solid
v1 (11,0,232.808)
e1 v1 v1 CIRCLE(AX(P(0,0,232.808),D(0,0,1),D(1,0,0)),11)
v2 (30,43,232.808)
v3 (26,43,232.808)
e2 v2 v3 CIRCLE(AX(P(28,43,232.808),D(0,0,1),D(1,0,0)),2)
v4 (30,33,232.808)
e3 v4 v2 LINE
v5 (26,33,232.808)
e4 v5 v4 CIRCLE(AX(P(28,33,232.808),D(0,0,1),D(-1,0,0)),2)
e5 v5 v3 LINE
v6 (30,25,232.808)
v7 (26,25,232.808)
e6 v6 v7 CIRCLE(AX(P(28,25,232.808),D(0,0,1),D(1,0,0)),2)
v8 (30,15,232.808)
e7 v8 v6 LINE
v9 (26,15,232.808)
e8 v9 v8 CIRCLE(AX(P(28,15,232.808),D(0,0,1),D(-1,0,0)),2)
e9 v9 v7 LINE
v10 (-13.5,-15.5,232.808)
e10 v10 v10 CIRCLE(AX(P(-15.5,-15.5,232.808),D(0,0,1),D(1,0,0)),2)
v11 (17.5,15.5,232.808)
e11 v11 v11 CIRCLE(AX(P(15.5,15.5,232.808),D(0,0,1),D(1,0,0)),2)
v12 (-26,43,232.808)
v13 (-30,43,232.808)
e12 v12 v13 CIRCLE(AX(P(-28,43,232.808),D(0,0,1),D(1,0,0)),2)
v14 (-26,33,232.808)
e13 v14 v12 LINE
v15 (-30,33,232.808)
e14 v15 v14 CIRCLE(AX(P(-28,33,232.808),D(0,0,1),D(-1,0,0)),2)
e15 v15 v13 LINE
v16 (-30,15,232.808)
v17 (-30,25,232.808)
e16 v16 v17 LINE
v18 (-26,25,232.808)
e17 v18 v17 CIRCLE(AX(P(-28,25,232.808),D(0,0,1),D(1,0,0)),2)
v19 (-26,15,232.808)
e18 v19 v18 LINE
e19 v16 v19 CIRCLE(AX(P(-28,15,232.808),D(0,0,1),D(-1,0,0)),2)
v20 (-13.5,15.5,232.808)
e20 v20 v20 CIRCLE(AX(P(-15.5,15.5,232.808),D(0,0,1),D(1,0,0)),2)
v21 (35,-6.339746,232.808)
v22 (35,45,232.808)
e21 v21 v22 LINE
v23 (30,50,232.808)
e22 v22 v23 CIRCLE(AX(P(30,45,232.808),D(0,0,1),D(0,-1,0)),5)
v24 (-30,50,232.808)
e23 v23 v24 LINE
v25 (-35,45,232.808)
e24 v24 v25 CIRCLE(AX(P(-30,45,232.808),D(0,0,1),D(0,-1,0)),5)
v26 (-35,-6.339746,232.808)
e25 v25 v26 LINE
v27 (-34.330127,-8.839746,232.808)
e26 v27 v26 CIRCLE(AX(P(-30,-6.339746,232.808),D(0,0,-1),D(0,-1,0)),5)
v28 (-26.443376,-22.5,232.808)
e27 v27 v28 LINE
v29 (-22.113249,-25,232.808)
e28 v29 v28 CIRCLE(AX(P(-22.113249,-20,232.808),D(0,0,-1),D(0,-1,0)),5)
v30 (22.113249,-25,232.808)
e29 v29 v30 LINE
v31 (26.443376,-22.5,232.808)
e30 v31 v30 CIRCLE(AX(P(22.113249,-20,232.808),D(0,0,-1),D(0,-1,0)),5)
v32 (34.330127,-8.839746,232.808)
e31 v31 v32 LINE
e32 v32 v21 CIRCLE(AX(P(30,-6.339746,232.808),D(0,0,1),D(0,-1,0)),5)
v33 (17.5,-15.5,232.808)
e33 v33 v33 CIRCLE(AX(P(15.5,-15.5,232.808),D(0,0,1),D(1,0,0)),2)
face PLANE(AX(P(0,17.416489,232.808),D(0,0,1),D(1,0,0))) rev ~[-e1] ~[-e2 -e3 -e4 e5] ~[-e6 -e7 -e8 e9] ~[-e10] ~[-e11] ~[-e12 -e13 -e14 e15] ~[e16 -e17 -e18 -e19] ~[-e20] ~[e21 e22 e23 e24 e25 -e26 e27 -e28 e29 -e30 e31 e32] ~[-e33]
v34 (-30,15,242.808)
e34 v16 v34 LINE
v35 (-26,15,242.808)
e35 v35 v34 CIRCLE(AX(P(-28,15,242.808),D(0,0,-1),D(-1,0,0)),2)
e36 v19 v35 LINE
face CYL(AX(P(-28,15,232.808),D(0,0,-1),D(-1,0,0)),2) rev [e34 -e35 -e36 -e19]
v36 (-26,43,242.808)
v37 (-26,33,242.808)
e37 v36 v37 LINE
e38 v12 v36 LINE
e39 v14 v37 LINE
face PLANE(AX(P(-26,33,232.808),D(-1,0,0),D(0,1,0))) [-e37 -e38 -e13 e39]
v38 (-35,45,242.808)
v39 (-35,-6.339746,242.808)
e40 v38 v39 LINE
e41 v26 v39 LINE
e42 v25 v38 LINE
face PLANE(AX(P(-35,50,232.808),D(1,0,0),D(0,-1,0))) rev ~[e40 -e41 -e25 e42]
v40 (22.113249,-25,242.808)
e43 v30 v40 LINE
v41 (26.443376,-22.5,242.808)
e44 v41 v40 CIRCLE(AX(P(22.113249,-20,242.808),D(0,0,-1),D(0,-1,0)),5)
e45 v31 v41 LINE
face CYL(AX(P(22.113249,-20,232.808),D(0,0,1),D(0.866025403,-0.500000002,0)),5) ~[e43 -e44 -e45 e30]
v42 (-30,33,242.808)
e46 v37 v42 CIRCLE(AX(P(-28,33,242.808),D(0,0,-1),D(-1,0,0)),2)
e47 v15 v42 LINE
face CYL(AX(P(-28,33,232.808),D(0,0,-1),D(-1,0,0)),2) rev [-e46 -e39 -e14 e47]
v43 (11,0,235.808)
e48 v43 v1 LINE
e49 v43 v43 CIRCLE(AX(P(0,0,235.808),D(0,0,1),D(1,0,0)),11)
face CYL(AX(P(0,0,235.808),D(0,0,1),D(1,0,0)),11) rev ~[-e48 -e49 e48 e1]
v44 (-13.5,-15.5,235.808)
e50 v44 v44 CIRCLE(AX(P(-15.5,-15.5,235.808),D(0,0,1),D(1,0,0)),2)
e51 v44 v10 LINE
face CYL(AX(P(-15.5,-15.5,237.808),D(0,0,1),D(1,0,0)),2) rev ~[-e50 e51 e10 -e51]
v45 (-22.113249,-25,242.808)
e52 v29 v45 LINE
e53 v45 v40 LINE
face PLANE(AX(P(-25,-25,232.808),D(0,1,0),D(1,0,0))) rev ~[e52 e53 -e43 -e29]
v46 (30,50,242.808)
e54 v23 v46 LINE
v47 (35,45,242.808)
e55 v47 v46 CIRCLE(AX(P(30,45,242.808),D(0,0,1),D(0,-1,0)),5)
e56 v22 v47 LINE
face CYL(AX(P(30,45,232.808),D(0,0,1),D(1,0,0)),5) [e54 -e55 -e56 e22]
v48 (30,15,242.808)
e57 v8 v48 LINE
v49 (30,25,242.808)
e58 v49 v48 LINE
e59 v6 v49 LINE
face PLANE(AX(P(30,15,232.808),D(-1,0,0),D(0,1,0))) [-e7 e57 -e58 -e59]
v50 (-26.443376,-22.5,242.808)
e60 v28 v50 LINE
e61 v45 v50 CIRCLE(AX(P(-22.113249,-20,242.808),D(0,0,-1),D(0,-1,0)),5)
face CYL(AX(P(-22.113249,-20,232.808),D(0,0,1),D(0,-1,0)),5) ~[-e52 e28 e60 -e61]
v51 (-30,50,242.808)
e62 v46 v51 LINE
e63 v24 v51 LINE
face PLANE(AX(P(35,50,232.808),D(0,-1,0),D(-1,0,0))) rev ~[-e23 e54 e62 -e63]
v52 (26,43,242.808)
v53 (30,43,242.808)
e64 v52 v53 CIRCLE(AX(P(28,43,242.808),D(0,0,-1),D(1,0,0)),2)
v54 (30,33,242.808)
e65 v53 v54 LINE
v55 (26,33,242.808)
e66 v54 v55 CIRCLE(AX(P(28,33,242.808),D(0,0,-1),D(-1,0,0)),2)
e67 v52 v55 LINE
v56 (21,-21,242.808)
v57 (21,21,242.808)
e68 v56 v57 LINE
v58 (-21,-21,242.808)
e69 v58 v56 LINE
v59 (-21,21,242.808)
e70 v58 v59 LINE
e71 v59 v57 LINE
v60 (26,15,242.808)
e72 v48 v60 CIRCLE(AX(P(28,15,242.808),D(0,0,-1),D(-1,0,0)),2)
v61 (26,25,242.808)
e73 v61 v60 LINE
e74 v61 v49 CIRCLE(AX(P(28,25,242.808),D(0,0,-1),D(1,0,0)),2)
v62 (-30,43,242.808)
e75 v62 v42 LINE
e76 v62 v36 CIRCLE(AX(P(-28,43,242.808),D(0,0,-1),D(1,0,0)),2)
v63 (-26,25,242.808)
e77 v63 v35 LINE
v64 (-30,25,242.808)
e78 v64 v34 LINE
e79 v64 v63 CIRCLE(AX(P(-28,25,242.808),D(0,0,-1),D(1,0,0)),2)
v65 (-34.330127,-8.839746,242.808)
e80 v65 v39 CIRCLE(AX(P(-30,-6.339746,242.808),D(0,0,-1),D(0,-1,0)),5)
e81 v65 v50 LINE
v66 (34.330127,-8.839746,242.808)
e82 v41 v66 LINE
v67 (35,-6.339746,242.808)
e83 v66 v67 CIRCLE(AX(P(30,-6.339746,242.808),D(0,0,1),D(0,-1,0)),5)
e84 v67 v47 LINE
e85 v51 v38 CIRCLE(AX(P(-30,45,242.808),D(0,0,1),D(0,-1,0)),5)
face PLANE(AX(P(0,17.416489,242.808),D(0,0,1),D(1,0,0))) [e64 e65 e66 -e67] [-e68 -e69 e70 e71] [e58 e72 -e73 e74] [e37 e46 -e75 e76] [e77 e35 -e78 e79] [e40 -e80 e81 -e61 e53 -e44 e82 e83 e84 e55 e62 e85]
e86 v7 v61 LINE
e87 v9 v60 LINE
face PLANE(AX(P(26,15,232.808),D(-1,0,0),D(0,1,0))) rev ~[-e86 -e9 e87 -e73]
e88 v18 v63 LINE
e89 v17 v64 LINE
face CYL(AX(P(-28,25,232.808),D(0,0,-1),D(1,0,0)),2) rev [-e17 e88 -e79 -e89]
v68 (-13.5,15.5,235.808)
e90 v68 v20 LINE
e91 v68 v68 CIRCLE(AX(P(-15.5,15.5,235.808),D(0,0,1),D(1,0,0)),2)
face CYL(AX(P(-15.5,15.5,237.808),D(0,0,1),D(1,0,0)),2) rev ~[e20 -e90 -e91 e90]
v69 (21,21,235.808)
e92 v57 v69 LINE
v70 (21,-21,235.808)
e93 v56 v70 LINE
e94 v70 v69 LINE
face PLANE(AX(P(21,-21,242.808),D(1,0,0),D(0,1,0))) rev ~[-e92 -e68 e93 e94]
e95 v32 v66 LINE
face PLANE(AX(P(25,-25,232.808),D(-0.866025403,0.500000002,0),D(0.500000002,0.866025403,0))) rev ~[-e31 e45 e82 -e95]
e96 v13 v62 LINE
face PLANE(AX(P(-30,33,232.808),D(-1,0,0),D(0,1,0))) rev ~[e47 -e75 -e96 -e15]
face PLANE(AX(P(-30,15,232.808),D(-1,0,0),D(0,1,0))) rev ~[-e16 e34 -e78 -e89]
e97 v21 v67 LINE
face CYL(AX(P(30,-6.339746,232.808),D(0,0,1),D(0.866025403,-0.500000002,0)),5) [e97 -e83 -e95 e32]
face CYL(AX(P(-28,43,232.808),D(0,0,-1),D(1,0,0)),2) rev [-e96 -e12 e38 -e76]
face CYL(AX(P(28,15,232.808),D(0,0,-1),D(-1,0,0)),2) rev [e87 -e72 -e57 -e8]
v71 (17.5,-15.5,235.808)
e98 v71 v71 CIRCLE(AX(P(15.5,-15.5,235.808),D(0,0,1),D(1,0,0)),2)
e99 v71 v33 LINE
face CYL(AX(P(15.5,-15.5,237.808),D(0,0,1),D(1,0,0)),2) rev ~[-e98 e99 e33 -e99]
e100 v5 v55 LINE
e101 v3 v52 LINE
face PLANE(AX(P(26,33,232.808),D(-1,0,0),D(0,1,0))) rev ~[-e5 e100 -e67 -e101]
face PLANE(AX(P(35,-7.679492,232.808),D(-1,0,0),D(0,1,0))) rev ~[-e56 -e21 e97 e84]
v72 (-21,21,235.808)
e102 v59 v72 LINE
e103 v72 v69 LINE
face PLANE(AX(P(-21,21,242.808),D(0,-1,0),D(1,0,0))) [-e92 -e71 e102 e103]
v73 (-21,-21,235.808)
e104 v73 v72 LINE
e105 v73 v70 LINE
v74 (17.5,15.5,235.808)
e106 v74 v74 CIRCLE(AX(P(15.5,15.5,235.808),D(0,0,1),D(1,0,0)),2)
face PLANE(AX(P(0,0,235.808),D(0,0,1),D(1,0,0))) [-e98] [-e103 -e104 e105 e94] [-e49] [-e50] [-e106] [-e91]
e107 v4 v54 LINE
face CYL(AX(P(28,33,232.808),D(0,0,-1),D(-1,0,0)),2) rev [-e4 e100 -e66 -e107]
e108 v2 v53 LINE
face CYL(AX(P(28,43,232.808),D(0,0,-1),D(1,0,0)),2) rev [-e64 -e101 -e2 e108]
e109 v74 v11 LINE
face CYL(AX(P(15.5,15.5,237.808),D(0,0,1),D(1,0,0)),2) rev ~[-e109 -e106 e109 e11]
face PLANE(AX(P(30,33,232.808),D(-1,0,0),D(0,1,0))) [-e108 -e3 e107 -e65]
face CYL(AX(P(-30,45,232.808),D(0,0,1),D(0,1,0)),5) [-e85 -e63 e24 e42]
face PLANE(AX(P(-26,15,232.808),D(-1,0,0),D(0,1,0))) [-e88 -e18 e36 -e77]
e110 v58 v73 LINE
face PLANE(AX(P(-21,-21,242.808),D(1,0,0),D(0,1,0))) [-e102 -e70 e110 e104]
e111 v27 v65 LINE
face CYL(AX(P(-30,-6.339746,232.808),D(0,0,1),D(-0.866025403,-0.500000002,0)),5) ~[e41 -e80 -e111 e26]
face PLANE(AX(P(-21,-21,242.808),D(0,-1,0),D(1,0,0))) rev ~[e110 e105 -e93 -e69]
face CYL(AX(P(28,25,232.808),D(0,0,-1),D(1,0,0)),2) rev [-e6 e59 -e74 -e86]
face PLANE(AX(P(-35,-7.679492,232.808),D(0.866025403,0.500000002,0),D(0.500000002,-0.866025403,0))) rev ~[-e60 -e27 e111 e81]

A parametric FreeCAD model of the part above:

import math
import FreeCAD as App
import Part
import Sketcher
Q = App.Units.Quantity


def edges_at(feature, points):
    """Names of the edges that pass closest to the given points."""
    edges = feature.Shape.Edges
    near = lambda p: min(range(len(edges)), key=lambda i: edges[i].distToShape(Part.Vertex(*p))[0])
    return sorted({f"Edge{near(p) + 1}" for p in points})

doc = App.newDocument("Part")
body = doc.addObject("PartDesign::Body", "Body")

# Sketch on XY plane
sketch1 = doc.addObject("Sketcher::SketchObject", "Sketch")
body.addObject(sketch1)
sketch1.AttachmentSupport = (doc.XY_Plane, [""])
sketch1.MapMode = "FlatFace"
sketch1.addGeometry([
    Part.LineSegment(App.Vector(-25, 25, 0), App.Vector(-25, -25, 0)),
    Part.LineSegment(App.Vector(-25, -25, 0), App.Vector(25, -25, 0)),
    Part.LineSegment(App.Vector(25, -25, 0), App.Vector(25, 25, 0)),
    Part.LineSegment(App.Vector(25, 25, 0), App.Vector(-25, 25, 0)),
], False)
sketch1.addConstraint([
    Sketcher.Constraint("Coincident", 0, 2, 1, 1),
    Sketcher.Constraint("Coincident", 1, 2, 2, 1),
    Sketcher.Constraint("Coincident", 2, 2, 3, 1),
    Sketcher.Constraint("Coincident", 3, 2, 0, 1),
    Sketcher.Constraint("Vertical", 0),
    Sketcher.Constraint("Horizontal", 1),
    Sketcher.Constraint("Vertical", 2),
    Sketcher.Constraint("Horizontal", 3),
    Sketcher.Constraint("Symmetric", 0, 2, 2, 2, -1, 1),
    Sketcher.Constraint("Equal", 3, 0),
    Sketcher.Constraint("DistanceX", 1, 1, 1, 2, 50.0),
])
pad1 = doc.addObject("PartDesign::Pad", "Pad")
body.addObject(pad1)
pad1.Profile = sketch1
pad1.Length = 10

# Sketch on XY plane
sketch2 = doc.addObject("Sketcher::SketchObject", "Sketch001")
body.addObject(sketch2)
sketch2.AttachmentSupport = (doc.XY_Plane, [""])
sketch2.MapMode = "FlatFace"
sketch2.AttachmentOffset = App.Placement(App.Vector(0, 0, 10), App.Rotation())
sketch2.addGeometry([
    Part.LineSegment(App.Vector(-21, 21, 0), App.Vector(-21, -21, 0)),
    Part.LineSegment(App.Vector(-21, -21, 0), App.Vector(21, -21, 0)),
    Part.LineSegment(App.Vector(21, -21, 0), App.Vector(21, 21, 0)),
    Part.LineSegment(App.Vector(21, 21, 0), App.Vector(-21, 21, 0)),
], False)
sketch2.addConstraint([
    Sketcher.Constraint("Coincident", 0, 2, 1, 1),
    Sketcher.Constraint("Coincident", 1, 2, 2, 1),
    Sketcher.Constraint("Coincident", 2, 2, 3, 1),
    Sketcher.Constraint("Coincident", 3, 2, 0, 1),
    Sketcher.Constraint("Vertical", 0),
    Sketcher.Constraint("Horizontal", 1),
    Sketcher.Constraint("Vertical", 2),
    Sketcher.Constraint("Horizontal", 3),
    Sketcher.Constraint("Symmetric", 0, 2, 2, 2, -1, 1),
    Sketcher.Constraint("Equal", 3, 0),
    Sketcher.Constraint("DistanceX", 1, 1, 1, 2, 42.0),
])
pocket1 = doc.addObject("PartDesign::Pocket", "Pocket")
body.addObject(pocket1)
pocket1.Profile = sketch2
pocket1.Length = 7

# Sketch on XY plane
sketch3 = doc.addObject("Sketcher::SketchObject", "Sketch002")
body.addObject(sketch3)
sketch3.AttachmentSupport = (doc.XY_Plane, [""])
sketch3.MapMode = "FlatFace"
sketch3.AttachmentOffset = App.Placement(App.Vector(0, 0, 3), App.Rotation())
sketch3.addGeometry(Part.Circle(App.Vector(0, 0, 0), App.Vector(0, 0, 1), 11), False)
sketch3.addConstraint([
    Sketcher.Constraint("Coincident", 0, 3, -1, 1),
    Sketcher.Constraint("Diameter", 0, 22.0),
])
pocket2 = doc.addObject("PartDesign::Pocket", "Pocket001")
body.addObject(pocket2)
pocket2.Profile = sketch3
pocket2.Type = "ThroughAll"

# Sketch on XY plane
sketch4 = doc.addObject("Sketcher::SketchObject", "Sketch003")
body.addObject(sketch4)
sketch4.AttachmentSupport = (doc.XY_Plane, [""])
sketch4.MapMode = "FlatFace"
sketch4.AttachmentOffset = App.Placement(App.Vector(0, 0, 5), App.Rotation())
sketch4.addGeometry([
    Part.Circle(App.Vector(-15.5, 15.5, 0), App.Vector(0, 0, 1), 2),
    Part.Circle(App.Vector(15.5, 15.5, 0), App.Vector(0, 0, 1), 2),
    Part.Circle(App.Vector(15.5, -15.5, 0), App.Vector(0, 0, 1), 2),
    Part.Circle(App.Vector(-15.5, -15.5, 0), App.Vector(0, 0, 1), 2),
], False)
sketch4.addConstraint([
    Sketcher.Constraint("Equal", 0, 1),
    Sketcher.Constraint("Equal", 1, 2),
    Sketcher.Constraint("Equal", 2, 3),
    Sketcher.Constraint("Symmetric", 0, 3, 2, 3, -1, 1),
    Sketcher.Constraint("Symmetric", 1, 3, 3, 3, -1, 1),
    Sketcher.Constraint("Symmetric", 0, 3, 1, 3, -2),
    Sketcher.Constraint("Diameter", 0, 4.0),
    Sketcher.Constraint("DistanceX", 0, 3, 1, 3, 31.0),
    Sketcher.Constraint("DistanceY", 2, 3, 1, 3, 31.0),
])
pocket3 = doc.addObject("PartDesign::Pocket", "Pocket002")
body.addObject(pocket3)
pocket3.Profile = sketch4
pocket3.Length = 5

# Sketch on XY plane
sketch5 = doc.addObject("Sketcher::SketchObject", "Sketch004")
body.addObject(sketch5)
sketch5.AttachmentSupport = (doc.XY_Plane, [""])
sketch5.MapMode = "FlatFace"
sketch5.addGeometry([
    Part.LineSegment(App.Vector(-25, 25, 0), App.Vector(25, 25, 0)),  # 0
    Part.LineSegment(App.Vector(25, 25, 0), App.Vector(25, -25, 0)),  # 1
    Part.LineSegment(App.Vector(25, -25, 0), App.Vector(35, -7.679492, 0)),  # 2
    Part.LineSegment(App.Vector(35, -7.679492, 0), App.Vector(35, 50, 0)),  # 3
    Part.LineSegment(App.Vector(35, 50, 0), App.Vector(-35, 50, 0)),  # 4
    Part.LineSegment(App.Vector(-35, 50, 0), App.Vector(-35, -7.679492, 0)),  # 5
    Part.LineSegment(App.Vector(-35, -7.679492, 0), App.Vector(-25, -25, 0)),  # 6
    Part.LineSegment(App.Vector(-25, -25, 0), App.Vector(-25, 25, 0)),  # 7
], False)
sketch5.addConstraint([
    Sketcher.Constraint("Coincident", 0, 2, 1, 1),
    Sketcher.Constraint("Coincident", 1, 2, 2, 1),
    Sketcher.Constraint("Coincident", 2, 2, 3, 1),
    Sketcher.Constraint("Coincident", 3, 2, 4, 1),
    Sketcher.Constraint("Coincident", 4, 2, 5, 1),
    Sketcher.Constraint("Coincident", 5, 2, 6, 1),
    Sketcher.Constraint("Coincident", 6, 2, 7, 1),
    Sketcher.Constraint("Coincident", 7, 2, 0, 1),
    Sketcher.Constraint("Horizontal", 0),
    Sketcher.Constraint("Vertical", 1),
    Sketcher.Constraint("Vertical", 3),
    Sketcher.Constraint("Horizontal", 4),
    Sketcher.Constraint("Vertical", 5),
    Sketcher.Constraint("Vertical", 7),
    Sketcher.Constraint("Symmetric", 0, 2, 6, 2, -1, 1),
    Sketcher.Constraint("Symmetric", 2, 2, 5, 2, -2),
    Sketcher.Constraint("Horizontal", 1, 2, 6, 2),
    Sketcher.Constraint("Equal", 0, 1),
    Sketcher.Constraint("DistanceX", 0, 1, 0, 2, 50.0),
    Sketcher.Constraint("DistanceX", 4, 2, 4, 1, 70.0),
    Sketcher.Constraint("Angle", 2, Q("60 deg")),
    Sketcher.Constraint("DistanceY", -1, 1, 3, 2, 50.0),
])
pad2 = doc.addObject("PartDesign::Pad", "Pad001")
body.addObject(pad2)
pad2.Profile = sketch5
pad2.Length = 10

# Sketch on XY plane
sketch6 = doc.addObject("Sketcher::SketchObject", "Sketch005")
body.addObject(sketch6)
sketch6.AttachmentSupport = (doc.XY_Plane, [""])
sketch6.MapMode = "FlatFace"
sketch6.addGeometry([
    Part.ArcOfCircle(Part.Circle(App.Vector(-28, 15, 0), App.Vector(0, 0, 1), 2), math.radians(180), math.radians(360)),
    Part.LineSegment(App.Vector(-26, 15, 0), App.Vector(-26, 25, 0)),
    Part.ArcOfCircle(Part.Circle(App.Vector(-28, 25, 0), App.Vector(0, 0, 1), 2), math.radians(0), math.radians(180)),
    Part.LineSegment(App.Vector(-30, 25, 0), App.Vector(-30, 15, 0)),
], False)
sketch6.addConstraint([
    Sketcher.Constraint("Tangent", 0, 2, 1, 1),
    Sketcher.Constraint("Tangent", 1, 2, 2, 1),
    Sketcher.Constraint("Tangent", 2, 2, 3, 1),
    Sketcher.Constraint("Tangent", 3, 2, 0, 1),
    Sketcher.Constraint("Vertical", 1),
    Sketcher.Constraint("Vertical", 3),
    Sketcher.Constraint("Radius", 0, 2.0),
    Sketcher.Constraint("DistanceY", 1, 1, 1, 2, 10.0),
    Sketcher.Constraint("DistanceX", 0, 3, -1, 1, 28.0),
    Sketcher.Constraint("DistanceY", -1, 1, 0, 3, 15.0),
])
pocket4 = doc.addObject("PartDesign::Pocket", "Pocket003")
body.addObject(pocket4)
pocket4.Profile = sketch6
pocket4.Type = "ThroughAll"
pocket4.Reversed = True

# Sketch on XY plane
sketch7 = doc.addObject("Sketcher::SketchObject", "Sketch006")
body.addObject(sketch7)
sketch7.AttachmentSupport = (doc.XY_Plane, [""])
sketch7.MapMode = "FlatFace"
sketch7.addGeometry([
    Part.ArcOfCircle(Part.Circle(App.Vector(28, 15, 0), App.Vector(0, 0, 1), 2), math.radians(180), math.radians(360)),
    Part.LineSegment(App.Vector(30, 15, 0), App.Vector(30, 25, 0)),
    Part.ArcOfCircle(Part.Circle(App.Vector(28, 25, 0), App.Vector(0, 0, 1), 2), math.radians(0), math.radians(180)),
    Part.LineSegment(App.Vector(26, 25, 0), App.Vector(26, 15, 0)),
], False)
sketch7.addConstraint([
    Sketcher.Constraint("Tangent", 0, 2, 1, 1),
    Sketcher.Constraint("Tangent", 1, 2, 2, 1),
    Sketcher.Constraint("Tangent", 2, 2, 3, 1),
    Sketcher.Constraint("Tangent", 3, 2, 0, 1),
    Sketcher.Constraint("Vertical", 1),
    Sketcher.Constraint("Vertical", 3),
    Sketcher.Constraint("Radius", 0, 2.0),
    Sketcher.Constraint("DistanceY", 1, 1, 1, 2, 10.0),
    Sketcher.Constraint("DistanceX", -1, 1, 0, 3, 28.0),
    Sketcher.Constraint("DistanceY", -1, 1, 0, 3, 15.0),
])
pocket5 = doc.addObject("PartDesign::Pocket", "Pocket004")
body.addObject(pocket5)
pocket5.Profile = sketch7
pocket5.Type = "ThroughAll"
pocket5.Reversed = True
doc.recompute()

linearpattern = doc.addObject("PartDesign::LinearPattern", "LinearPattern")
body.addObject(linearpattern)
linearpattern.Originals = [pocket4, pocket5]
linearpattern.Direction = (doc.Y_Axis, [""])
linearpattern.Mode = "offset"
linearpattern.Offset = 18
linearpattern.Occurrences = 2
body.Tip = linearpattern
doc.recompute()

fillet = doc.addObject("PartDesign::Fillet", "Fillet")
body.addObject(fillet)
fillet.Base = (linearpattern, edges_at(linearpattern, [
    (25, -25, 5),
    (35, -7.679, 5),
    (35, 50, 5),
    (-25, -25, 5),
    (-35, -7.679, 5),
    (-35, 50, 5),
]))
fillet.Radius = 5
body2 = doc.addObject("PartDesign::Body", "Body001")
doc.recompute()

body.Placement = App.Placement(App.Vector(0, 0, 232.808), App.Rotation(App.Vector(0, 0, 1), 0))
boolean = doc.addObject("PartDesign::Boolean", "Boolean")
body2.addObject(boolean)
boolean.Type = "Fuse"
boolean.addObjects([body])

doc.recompute()
